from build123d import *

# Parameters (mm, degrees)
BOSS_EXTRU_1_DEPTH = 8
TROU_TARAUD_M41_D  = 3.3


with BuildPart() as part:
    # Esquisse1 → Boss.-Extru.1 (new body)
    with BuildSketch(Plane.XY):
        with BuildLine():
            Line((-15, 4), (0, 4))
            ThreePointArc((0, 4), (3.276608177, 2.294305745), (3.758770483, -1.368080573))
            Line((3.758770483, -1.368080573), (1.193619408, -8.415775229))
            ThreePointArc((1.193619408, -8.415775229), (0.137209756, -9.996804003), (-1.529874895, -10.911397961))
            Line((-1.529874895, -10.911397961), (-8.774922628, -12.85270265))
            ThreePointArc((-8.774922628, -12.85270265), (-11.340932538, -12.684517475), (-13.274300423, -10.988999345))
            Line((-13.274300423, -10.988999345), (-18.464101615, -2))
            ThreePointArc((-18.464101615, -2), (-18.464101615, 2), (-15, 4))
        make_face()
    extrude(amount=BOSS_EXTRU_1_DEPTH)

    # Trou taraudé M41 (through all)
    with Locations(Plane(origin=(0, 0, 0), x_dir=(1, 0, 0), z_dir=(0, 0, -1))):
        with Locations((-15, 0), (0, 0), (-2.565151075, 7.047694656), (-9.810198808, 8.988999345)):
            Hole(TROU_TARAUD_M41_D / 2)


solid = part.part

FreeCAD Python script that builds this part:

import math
import FreeCAD as App
import Part
import Sketcher
from FreeCAD import Vector
Q = App.Units.Quantity

doc = App.newDocument("Part")
body = doc.addObject("PartDesign::Body", "Body")

# Sketch on XY plane
sketch1 = doc.addObject("Sketcher::SketchObject", "Sketch")
body.addObject(sketch1)
sketch1.AttachmentSupport = (doc.XY_Plane, [""])
sketch1.MapMode = "FlatFace"
sketch1.addGeometry(Part.LineSegment(Vector(0, 4, 0), Vector(-15, 4, 0)), False)
sketch1.addGeometry(Part.ArcOfCircle(Part.Circle(Vector(-15, 0, 0), Vector(0, 0, 1), 4), math.radians(90), math.radians(210)), False)
sketch1.addGeometry(Part.LineSegment(Vector(-18.5, -2, 0), Vector(-13.3, -11, 0)), False)
sketch1.addGeometry(Part.ArcOfCircle(Part.Circle(Vector(-9.8, -9, 0), Vector(0, 0, 1), 4), math.radians(-150), math.radians(-75)), False)
sketch1.addGeometry(Part.LineSegment(Vector(-8.8, -12.9, 0), Vector(-1.5, -10.9, 0)), False)
sketch1.addGeometry(Part.ArcOfCircle(Part.Circle(Vector(-2.6, -7, 0), Vector(0, 0, 1), 4), math.radians(-75), math.radians(-20)), False)
sketch1.addGeometry(Part.LineSegment(Vector(1.2, -8.4, 0), Vector(3.8, -1.4, 0)), False)
sketch1.addGeometry(Part.ArcOfCircle(Part.Circle(Vector(0, 0, 0), Vector(0, 0, 1), 4), math.radians(-20), math.radians(90)), False)
sketch1.addConstraint(Sketcher.Constraint("Tangent", 0, 2, 1, 1))
sketch1.addConstraint(Sketcher.Constraint("Tangent", 1, 2, 2, 1))
sketch1.addConstraint(Sketcher.Constraint("Tangent", 2, 2, 3, 1))
sketch1.addConstraint(Sketcher.Constraint("Tangent", 3, 2, 4, 1))
sketch1.addConstraint(Sketcher.Constraint("Tangent", 4, 2, 5, 1))
sketch1.addConstraint(Sketcher.Constraint("Tangent", 5, 2, 6, 1))
sketch1.addConstraint(Sketcher.Constraint("Tangent", 6, 2, 7, 1))
sketch1.addConstraint(Sketcher.Constraint("Tangent", 7, 2, 0, 1))
sketch1.addConstraint(Sketcher.Constraint("Horizontal", 0))
sketch1.addConstraint(Sketcher.Constraint("Coincident", 7, 3, -1, 1))
sketch1.addConstraint(Sketcher.Constraint("Equal", 1, 3))
sketch1.addConstraint(Sketcher.Constraint("Equal", 3, 5))
sketch1.addConstraint(Sketcher.Constraint("Equal", 5, 7))
sketch1.addConstraint(Sketcher.Constraint("Radius", 1, Q("4 mm")))
sketch1.addConstraint(Sketcher.Constraint("DistanceX", 0, 2, 0, 1, Q("15 mm")))
sketch1.addConstraint(Sketcher.Constraint("Angle", 2, Q("-60 deg")))
sketch1.addConstraint(Sketcher.Constraint("Angle", 4, Q("15 deg")))
sketch1.addConstraint(Sketcher.Constraint("Angle", 6, Q("70 deg")))
sketch1.addConstraint(Sketcher.Constraint("Distance", 6, Q("7.5 mm")))
pad1 = doc.addObject("PartDesign::Pad", "Pad")
body.addObject(pad1)
pad1.Profile = sketch1
pad1.Length = 8

# Sketch on XY plane
sketch2 = doc.addObject("Sketcher::SketchObject", "Sketch001")
body.addObject(sketch2)
sketch2.AttachmentSupport = (doc.XY_Plane, [""])
sketch2.MapMode = "FlatFace"
sketch2.addGeometry(Part.Circle(Vector(-15, 0, 0), Vector(0, 0, 1), 1.6), False)
sketch2.addGeometry(Part.Circle(Vector(0, 0, 0), Vector(0, 0, 1), 1.6), False)
sketch2.addGeometry(Part.Circle(Vector(-2.6, -7, 0), Vector(0, 0, 1), 1.6), False)
sketch2.addGeometry(Part.Circle(Vector(-9.8, -9, 0), Vector(0, 0, 1), 1.6), False)
sketch2.addConstraint(Sketcher.Constraint("Coincident", 1, 3, -1, 1))
sketch2.addConstraint(Sketcher.Constraint("Equal", 0, 1))
sketch2.addConstraint(Sketcher.Constraint("Equal", 1, 2))
sketch2.addConstraint(Sketcher.Constraint("Equal", 2, 3))
sketch2.addConstraint(Sketcher.Constraint("PointOnObject", 0, 3, -1))
sketch2.addConstraint(Sketcher.Constraint("Diameter", 0, Q("3.3 mm")))
sketch2.addConstraint(Sketcher.Constraint("DistanceX", 0, 3, -1, 1, Q("15 mm")))
sketch2.addConstraint(Sketcher.Constraint("DistanceY", 3, 3, -1, 1, Q("8.988999 mm")))
sketch2.addConstraint(Sketcher.Constraint("DistanceX", 3, 3, -1, 1, Q("9.810199 mm")))
sketch2.addConstraint(Sketcher.Constraint("DistanceX", 2, 3, -1, 1, Q("2.565151 mm")))
sketch2.addConstraint(Sketcher.Constraint("DistanceY", 2, 3, -1, 1, Q("7.047695 mm")))
doc.recompute()
hole = doc.addObject("PartDesign::Hole", "Hole")
body.addObject(hole)
hole.Profile = sketch2
hole.ThreadType = "None"
hole.Diameter = 3.3
hole.DepthType = "ThroughAll"
hole.Reversed = True

doc.recompute()
